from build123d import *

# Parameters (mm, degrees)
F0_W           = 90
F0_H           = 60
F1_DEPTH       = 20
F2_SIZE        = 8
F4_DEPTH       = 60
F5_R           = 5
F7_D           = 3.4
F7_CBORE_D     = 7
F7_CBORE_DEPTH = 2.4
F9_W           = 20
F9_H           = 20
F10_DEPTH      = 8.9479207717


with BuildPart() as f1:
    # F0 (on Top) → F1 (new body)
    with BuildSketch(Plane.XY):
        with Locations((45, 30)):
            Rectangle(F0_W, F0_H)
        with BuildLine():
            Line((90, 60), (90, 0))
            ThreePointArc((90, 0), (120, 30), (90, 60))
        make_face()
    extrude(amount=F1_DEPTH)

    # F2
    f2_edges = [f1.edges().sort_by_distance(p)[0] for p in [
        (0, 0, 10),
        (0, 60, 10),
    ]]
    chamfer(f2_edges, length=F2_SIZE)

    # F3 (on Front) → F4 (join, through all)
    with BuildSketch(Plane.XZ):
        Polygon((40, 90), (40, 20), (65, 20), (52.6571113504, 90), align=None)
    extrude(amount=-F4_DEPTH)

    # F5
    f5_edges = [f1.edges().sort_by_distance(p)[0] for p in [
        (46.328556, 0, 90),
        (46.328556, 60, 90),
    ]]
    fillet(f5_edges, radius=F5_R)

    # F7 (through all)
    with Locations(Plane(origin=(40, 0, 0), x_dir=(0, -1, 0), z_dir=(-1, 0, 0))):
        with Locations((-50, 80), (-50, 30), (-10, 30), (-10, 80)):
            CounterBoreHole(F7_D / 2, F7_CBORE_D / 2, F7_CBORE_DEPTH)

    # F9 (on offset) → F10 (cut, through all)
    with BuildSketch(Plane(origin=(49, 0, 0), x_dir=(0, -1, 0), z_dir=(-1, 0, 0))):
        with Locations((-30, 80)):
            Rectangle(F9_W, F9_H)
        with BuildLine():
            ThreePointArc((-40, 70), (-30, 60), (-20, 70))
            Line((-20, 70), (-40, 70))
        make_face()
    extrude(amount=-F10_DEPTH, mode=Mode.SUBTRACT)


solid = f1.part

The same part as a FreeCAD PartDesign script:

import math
import FreeCAD as App
import Part
import Sketcher
Q = App.Units.Quantity


def edges_at(feature, points):
    """Names of the edges that pass closest to the given points."""
    edges = feature.Shape.Edges
    near = lambda p: min(range(len(edges)), key=lambda i: edges[i].distToShape(Part.Vertex(*p))[0])
    return sorted({f"Edge{near(p) + 1}" for p in points})

doc = App.newDocument("Part")
params = doc.addObject("Spreadsheet::Sheet", "Params")
for row, (alias, value) in enumerate([
    ("sketch1_radius", "30 mm"),
    ("sketch1_width", "90 mm"),
    ("pad1_length", "20 mm"),
    ("chamfer_size", "8 mm"),
    ("sketch2_width", "25 mm"),
    ("sketch2_height", "70 mm"),
    ("pad2_length", "60 mm"),
    ("fillet_radius", "5 mm"),
    ("sketch3_diameter", "3.4 mm"),
    ("hole_diameter", "3.4 mm"),
    ("hole_cbore_diameter", "7 mm"),
    ("hole_cbore_depth", "2.4 mm"),
    ("sketch4_radius", "10 mm"),
], start=1):
    params.set(f"A{row}", alias)
    params.set(f"B{row}", "=" + value)
    params.setAlias(f"B{row}", alias)

body = doc.addObject("PartDesign::Body", "Body")

# Sketch on XY plane
sketch1 = body.newObject("Sketcher::SketchObject", "Sketch")
sketch1.AttachmentSupport = (doc.getObject("XY_Plane"), [""])
sketch1.MapMode = "FlatFace"
sketch1.addGeometry(Part.LineSegment(App.Vector(0, 60, 0), App.Vector(0, 0, 0)), False)
sketch1.addGeometry(Part.LineSegment(App.Vector(0, 0, 0), App.Vector(90, 0, 0)), False)
sketch1.addGeometry(Part.ArcOfCircle(Part.Circle(App.Vector(90, 30, 0), App.Vector(0, 0, 1), 30), math.radians(-90), math.radians(90)), False)
sketch1.addGeometry(Part.LineSegment(App.Vector(90, 60, 0), App.Vector(0, 60, 0)), False)
sketch1.addConstraint(Sketcher.Constraint("Coincident", 0, 2, 1, 1))
sketch1.addConstraint(Sketcher.Constraint("Tangent", 1, 2, 2, 1))
sketch1.addConstraint(Sketcher.Constraint("Tangent", 2, 2, 3, 1))
sketch1.addConstraint(Sketcher.Constraint("Coincident", 3, 2, 0, 1))
sketch1.addConstraint(Sketcher.Constraint("Vertical", 0))
sketch1.addConstraint(Sketcher.Constraint("Horizontal", 1))
sketch1.addConstraint(Sketcher.Constraint("Horizontal", 3))
sketch1.addConstraint(Sketcher.Constraint("Coincident", 0, 2, -1, 1))
sketch1.addConstraint(Sketcher.Constraint("Radius", 2, 30.0))
sketch1.addConstraint(Sketcher.Constraint("DistanceX", 1, 1, 1, 2, 90.0))
sketch1.setExpression("Constraints[8]", "Params.sketch1_radius")
sketch1.setExpression("Constraints[9]", "Params.sketch1_width")
pad1 = body.newObject("PartDesign::Pad", "Pad")
pad1.Profile = sketch1
pad1.setExpression("Length", "Params.pad1_length")
doc.recompute()

chamfer = body.newObject("PartDesign::Chamfer", "Chamfer")
chamfer.Base = (pad1, edges_at(pad1, [(0, 0, 10), (0, 60, 10)]))
chamfer.setExpression("Size", "Params.chamfer_size")

# Sketch on XZ plane
sketch2 = body.newObject("Sketcher::SketchObject", "Sketch001")
sketch2.AttachmentSupport = (doc.getObject("XZ_Plane"), [""])
sketch2.MapMode = "FlatFace"
sketch2.addGeometry(Part.LineSegment(App.Vector(40, 90, 0), App.Vector(40, 20, 0)), False)
sketch2.addGeometry(Part.LineSegment(App.Vector(40, 20, 0), App.Vector(65, 20, 0)), False)
sketch2.addGeometry(Part.LineSegment(App.Vector(65, 20, 0), App.Vector(53, 90, 0)), False)
sketch2.addGeometry(Part.LineSegment(App.Vector(53, 90, 0), App.Vector(40, 90, 0)), False)
sketch2.addConstraint(Sketcher.Constraint("Coincident", 0, 2, 1, 1))
sketch2.addConstraint(Sketcher.Constraint("Coincident", 1, 2, 2, 1))
sketch2.addConstraint(Sketcher.Constraint("Coincident", 2, 2, 3, 1))
sketch2.addConstraint(Sketcher.Constraint("Coincident", 3, 2, 0, 1))
sketch2.addConstraint(Sketcher.Constraint("Vertical", 0))
sketch2.addConstraint(Sketcher.Constraint("Horizontal", 1))
sketch2.addConstraint(Sketcher.Constraint("Horizontal", 3))
sketch2.addConstraint(Sketcher.Constraint("DistanceX", 1, 1, 1, 2, 25.0))
sketch2.addConstraint(Sketcher.Constraint("DistanceY", 0, 2, 0, 1, 70.0))
sketch2.addConstraint(Sketcher.Constraint("Angle", 2, Q("100 deg")))
sketch2.addConstraint(Sketcher.Constraint("DistanceX", -1, 1, 0, 2, 40.0))
sketch2.addConstraint(Sketcher.Constraint("DistanceY", -1, 1, 0, 2, 20.0))
sketch2.setExpression("Constraints[7]", "Params.sketch2_width")
sketch2.setExpression("Constraints[8]", "Params.sketch2_height")
pad2 = body.newObject("PartDesign::Pad", "Pad001")
pad2.Profile = sketch2
pad2.setExpression("Length", "Params.pad2_length")
pad2.Reversed = True
doc.recompute()

fillet = body.newObject("PartDesign::Fillet", "Fillet")
fillet.Base = (pad2, edges_at(pad2, [(46.329, 0, 90), (46.329, 60, 90)]))
fillet.setExpression("Radius", "Params.fillet_radius")

# Sketch on YZ plane
sketch3 = body.newObject("Sketcher::SketchObject", "Sketch002")
sketch3.AttachmentSupport = (doc.getObject("YZ_Plane"), [""])
sketch3.MapMode = "FlatFace"
sketch3.AttachmentOffset = App.Placement(App.Vector(0, 0, 40), App.Rotation())
sketch3.addGeometry(Part.Circle(App.Vector(50, 80, 0), App.Vector(0, 0, 1), 1.7), False)
sketch3.addGeometry(Part.Circle(App.Vector(50, 30, 0), App.Vector(0, 0, 1), 1.7), False)
sketch3.addGeometry(Part.Circle(App.Vector(10, 30, 0), App.Vector(0, 0, 1), 1.7), False)
sketch3.addGeometry(Part.Circle(App.Vector(10, 80, 0), App.Vector(0, 0, 1), 1.7), False)
sketch3.addConstraint(Sketcher.Constraint("Equal", 0, 1))
sketch3.addConstraint(Sketcher.Constraint("Equal", 1, 2))
sketch3.addConstraint(Sketcher.Constraint("Equal", 2, 3))
sketch3.addConstraint(Sketcher.Constraint("Horizontal", 1, 3, 2, 3))
sketch3.addConstraint(Sketcher.Constraint("Horizontal", 0, 3, 3, 3))
sketch3.addConstraint(Sketcher.Constraint("Vertical", 0, 3, 1, 3))
sketch3.addConstraint(Sketcher.Constraint("Vertical", 2, 3, 3, 3))
sketch3.addConstraint(Sketcher.Constraint("Diameter", 0, 3.4))
sketch3.addConstraint(Sketcher.Constraint("DistanceX", -1, 1, 0, 3, 50.0))
sketch3.addConstraint(Sketcher.Constraint("DistanceY", -1, 1, 0, 3, 80.0))
sketch3.addConstraint(Sketcher.Constraint("DistanceY", -1, 1, 1, 3, 30.0))
sketch3.addConstraint(Sketcher.Constraint("DistanceX", -1, 1, 2, 3, 10.0))
sketch3.setExpression("Constraints[7]", "Params.sketch3_diameter")
doc.recompute()
hole = body.newObject("PartDesign::Hole", "Hole")
hole.Profile = sketch3
hole.ThreadType = "None"
hole.setExpression("Diameter", "Params.hole_diameter")
hole.DepthType = "ThroughAll"
hole.HoleCutType = "Counterbore"
hole.setExpression("HoleCutDiameter", "Params.hole_cbore_diameter")
hole.setExpression("HoleCutDepth", "Params.hole_cbore_depth")
hole.Reversed = True

# Sketch on YZ plane
sketch4 = body.newObject("Sketcher::SketchObject", "Sketch003")
sketch4.AttachmentSupport = (doc.getObject("YZ_Plane"), [""])
sketch4.MapMode = "FlatFace"
sketch4.AttachmentOffset = App.Placement(App.Vector(0, 0, 49), App.Rotation())
sketch4.addGeometry(Part.LineSegment(App.Vector(40, 90, 0), App.Vector(40, 70, 0)), False)
sketch4.addGeometry(Part.ArcOfCircle(Part.Circle(App.Vector(30, 70, 0), App.Vector(0, 0, 1), 10), math.radians(180), math.radians(360)), False)
sketch4.addGeometry(Part.LineSegment(App.Vector(20, 70, 0), App.Vector(20, 90, 0)), False)
sketch4.addGeometry(Part.LineSegment(App.Vector(20, 90, 0), App.Vector(40, 90, 0)), False)
sketch4.addConstraint(Sketcher.Constraint("Tangent", 0, 2, 1, 2))
sketch4.addConstraint(Sketcher.Constraint("Tangent", 1, 1, 2, 1))
sketch4.addConstraint(Sketcher.Constraint("Coincident", 2, 2, 3, 1))
sketch4.addConstraint(Sketcher.Constraint("Coincident", 3, 2, 0, 1))
sketch4.addConstraint(Sketcher.Constraint("Vertical", 0))
sketch4.addConstraint(Sketcher.Constraint("Vertical", 2))
sketch4.addConstraint(Sketcher.Constraint("Horizontal", 3))
sketch4.addConstraint(Sketcher.Constraint("Equal", 3, 0))
sketch4.addConstraint(Sketcher.Constraint("Radius", 1, 10.0))
sketch4.addConstraint(Sketcher.Constraint("DistanceX", -1, 1, 1, 3, 30.0))
sketch4.addConstraint(Sketcher.Constraint("DistanceY", -1, 1, 1, 3, 70.0))
sketch4.setExpression("Constraints[8]", "Params.sketch4_radius")
pocket1 = body.newObject("PartDesign::Pocket", "Pocket")
pocket1.Profile = sketch4
pocket1.Type = "ThroughAll"
pocket1.Reversed = True

doc.recompute()
